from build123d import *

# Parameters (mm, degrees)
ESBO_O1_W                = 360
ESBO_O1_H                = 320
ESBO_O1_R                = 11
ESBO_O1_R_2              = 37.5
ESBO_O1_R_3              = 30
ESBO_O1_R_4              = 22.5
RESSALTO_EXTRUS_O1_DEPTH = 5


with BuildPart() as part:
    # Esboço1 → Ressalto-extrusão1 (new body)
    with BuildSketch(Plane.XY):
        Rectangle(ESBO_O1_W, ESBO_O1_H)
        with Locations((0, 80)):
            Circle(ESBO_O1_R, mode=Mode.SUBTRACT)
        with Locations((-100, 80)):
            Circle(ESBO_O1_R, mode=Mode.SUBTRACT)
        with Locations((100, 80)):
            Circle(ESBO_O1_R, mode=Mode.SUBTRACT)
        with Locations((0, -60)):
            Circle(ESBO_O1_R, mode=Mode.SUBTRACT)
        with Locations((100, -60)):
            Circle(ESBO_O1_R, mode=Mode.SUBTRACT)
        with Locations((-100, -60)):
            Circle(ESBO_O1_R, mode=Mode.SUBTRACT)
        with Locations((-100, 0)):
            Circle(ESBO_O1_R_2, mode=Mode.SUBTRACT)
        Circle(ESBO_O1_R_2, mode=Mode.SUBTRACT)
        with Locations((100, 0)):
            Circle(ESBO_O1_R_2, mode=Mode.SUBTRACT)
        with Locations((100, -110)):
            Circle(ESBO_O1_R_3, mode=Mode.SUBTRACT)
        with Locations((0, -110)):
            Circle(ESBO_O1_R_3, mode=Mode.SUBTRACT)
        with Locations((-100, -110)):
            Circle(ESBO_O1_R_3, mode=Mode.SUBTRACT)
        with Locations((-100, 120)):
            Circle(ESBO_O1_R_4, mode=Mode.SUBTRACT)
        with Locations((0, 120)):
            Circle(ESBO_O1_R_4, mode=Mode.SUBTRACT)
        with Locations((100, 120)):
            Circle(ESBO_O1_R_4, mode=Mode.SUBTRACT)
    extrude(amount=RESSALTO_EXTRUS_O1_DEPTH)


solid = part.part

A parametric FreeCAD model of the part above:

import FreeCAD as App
import Part
import Sketcher

V = App.Vector
Q = App.Units.Quantity


def add_polygon(sketch, points):
    """Adds a closed chain of lines whose ends are joined by coincident constraints."""
    first, n = sketch.GeometryCount, len(points)
    for a, b in zip(points, points[1:] + points[:1]):
        sketch.addGeometry(Part.LineSegment(App.Vector(*a, 0), App.Vector(*b, 0)), False)
    for i in range(n):
        sketch.addConstraint(Sketcher.Constraint("Coincident", first + i, 2, first + (i + 1) % n, 1))

doc = App.newDocument("Part")
params = doc.addObject("Spreadsheet::Sheet", "Params")
for row, (alias, value) in enumerate([
    ("sketch1_diameter", "60 mm"),
    ("sketch1_diameter2", "22 mm"),
    ("sketch1_diameter3", "75 mm"),
    ("sketch1_diameter4", "45 mm"),
    ("sketch1_width", "360 mm"),
    ("pad1_length", "5 mm"),
], start=1):
    params.set(f"A{row}", alias)
    params.set(f"B{row}", "=" + value)
    params.setAlias(f"B{row}", alias)

body = doc.addObject("PartDesign::Body", "Body")

sketch1 = doc.addObject("Sketcher::SketchObject", "Sketch")
body.addObject(sketch1)
sketch1.AttachmentSupport = (doc.XY_Plane, [""])
sketch1.MapMode = "FlatFace"
add_polygon(sketch1, [(-180, 160), (-180, -160), (180, -160), (180, 160)])
sketch1.addGeometry(Part.Circle(V(-100, -110, 0), V(0, 0, 1), 30), False)
sketch1.addGeometry(Part.Circle(V(-100, -60, 0), V(0, 0, 1), 11), False)
sketch1.addGeometry(Part.Circle(V(-100, 0, 0), V(0, 0, 1), 38), False)
sketch1.addGeometry(Part.Circle(V(0, -110, 0), V(0, 0, 1), 30), False)
sketch1.addGeometry(Part.Circle(V(100, -110, 0), V(0, 0, 1), 30), False)
sketch1.addGeometry(Part.Circle(V(0, -60, 0), V(0, 0, 1), 11), False)
sketch1.addGeometry(Part.Circle(V(0, 0, 0), V(0, 0, 1), 38), False)
sketch1.addGeometry(Part.Circle(V(100, -60, 0), V(0, 0, 1), 11), False)
sketch1.addGeometry(Part.Circle(V(100, 0, 0), V(0, 0, 1), 38), False)
sketch1.addGeometry(Part.Circle(V(-100, 80, 0), V(0, 0, 1), 11), False)
sketch1.addGeometry(Part.Circle(V(-100, 120, 0), V(0, 0, 1), 22), False)
sketch1.addGeometry(Part.Circle(V(0, 80, 0), V(0, 0, 1), 11), False)
sketch1.addGeometry(Part.Circle(V(0, 120, 0), V(0, 0, 1), 22), False)
sketch1.addGeometry(Part.Circle(V(100, 80, 0), V(0, 0, 1), 11), False)
sketch1.addGeometry(Part.Circle(V(100, 120, 0), V(0, 0, 1), 22), False)
sketch1.addConstraint(Sketcher.Constraint("Vertical", 0))
sketch1.addConstraint(Sketcher.Constraint("Horizontal", 1))
sketch1.addConstraint(Sketcher.Constraint("Vertical", 2))
sketch1.addConstraint(Sketcher.Constraint("Horizontal", 3))
sketch1.addConstraint(Sketcher.Constraint("Coincident", 10, 3, -1, 1))
sketch1.addConstraint(Sketcher.Constraint("Equal", 4, 7))
sketch1.addConstraint(Sketcher.Constraint("Equal", 7, 8))
sketch1.addConstraint(Sketcher.Constraint("Equal", 5, 9))
sketch1.addConstraint(Sketcher.Constraint("Equal", 6, 10))
sketch1.addConstraint(Sketcher.Constraint("Equal", 9, 11))
sketch1.addConstraint(Sketcher.Constraint("Equal", 10, 12))
sketch1.addConstraint(Sketcher.Constraint("Equal", 11, 13))
sketch1.addConstraint(Sketcher.Constraint("Equal", 13, 15))
sketch1.addConstraint(Sketcher.Constraint("Equal", 14, 16))
sketch1.addConstraint(Sketcher.Constraint("Equal", 15, 17))
sketch1.addConstraint(Sketcher.Constraint("Equal", 16, 18))
sketch1.addConstraint(Sketcher.Constraint("Symmetric", 6, 3, 12, 3, -1, 1))
sketch1.addConstraint(Sketcher.Constraint("Symmetric", 0, 2, 2, 2, -1, 1))
sketch1.addConstraint(Sketcher.Constraint("Symmetric", 4, 3, 8, 3, -2))
sketch1.addConstraint(Sketcher.Constraint("Symmetric", 5, 3, 11, 3, -2))
sketch1.addConstraint(Sketcher.Constraint("Symmetric", 13, 3, 17, 3, -2))
sketch1.addConstraint(Sketcher.Constraint("Symmetric", 14, 3, 18, 3, -2))
sketch1.addConstraint(Sketcher.Constraint("PointOnObject", 6, 3, -1))
sketch1.addConstraint(Sketcher.Constraint("PointOnObject", 7, 3, -2))
sketch1.addConstraint(Sketcher.Constraint("PointOnObject", 9, 3, -2))
sketch1.addConstraint(Sketcher.Constraint("PointOnObject", 15, 3, -2))
sketch1.addConstraint(Sketcher.Constraint("PointOnObject", 16, 3, -2))
sketch1.addConstraint(Sketcher.Constraint("Horizontal", 4, 3, 7, 3))
sketch1.addConstraint(Sketcher.Constraint("Horizontal", 5, 3, 9, 3))
sketch1.addConstraint(Sketcher.Constraint("Horizontal", 13, 3, 15, 3))
sketch1.addConstraint(Sketcher.Constraint("Horizontal", 14, 3, 16, 3))
sketch1.addConstraint(Sketcher.Constraint("Vertical", 4, 3, 5, 3))
sketch1.addConstraint(Sketcher.Constraint("Vertical", 5, 3, 6, 3))
sketch1.addConstraint(Sketcher.Constraint("Vertical", 6, 3, 13, 3))
sketch1.addConstraint(Sketcher.Constraint("Vertical", 13, 3, 14, 3))
sketch1.addConstraint(Sketcher.Constraint("Diameter", 4, Q("60 mm")))
sketch1.addConstraint(Sketcher.Constraint("Diameter", 5, Q("22 mm")))
sketch1.addConstraint(Sketcher.Constraint("Diameter", 6, Q("75 mm")))
sketch1.addConstraint(Sketcher.Constraint("Diameter", 14, Q("45 mm")))
sketch1.addConstraint(Sketcher.Constraint("DistanceX", 1, 1, 1, 2, Q("360 mm")))
sketch1.addConstraint(Sketcher.Constraint("DistanceY", 0, 2, 0, 1, Q("320 mm")))
sketch1.addConstraint(Sketcher.Constraint("DistanceX", 4, 3, -1, 1, Q("100 mm")))
sketch1.addConstraint(Sketcher.Constraint("DistanceY", 4, 3, -1, 1, Q("110 mm")))
sketch1.addConstraint(Sketcher.Constraint("DistanceY", 5, 3, -1, 1, Q("60 mm")))
sketch1.addConstraint(Sketcher.Constraint("DistanceY", -1, 1, 13, 3, Q("80 mm")))
sketch1.addConstraint(Sketcher.Constraint("DistanceY", -1, 1, 14, 3, Q("120 mm")))
sketch1.setExpression("Constraints[39]", "Params.sketch1_diameter")
sketch1.setExpression("Constraints[40]", "Params.sketch1_diameter2")
sketch1.setExpression("Constraints[41]", "Params.sketch1_diameter3")
sketch1.setExpression("Constraints[42]", "Params.sketch1_diameter4")
sketch1.setExpression("Constraints[43]", "Params.sketch1_width")
pad1 = doc.addObject("PartDesign::Pad", "Pad")
body.addObject(pad1)
pad1.Profile = sketch1
pad1.setExpression("Length", "Params.pad1_length")

doc.recompute()
